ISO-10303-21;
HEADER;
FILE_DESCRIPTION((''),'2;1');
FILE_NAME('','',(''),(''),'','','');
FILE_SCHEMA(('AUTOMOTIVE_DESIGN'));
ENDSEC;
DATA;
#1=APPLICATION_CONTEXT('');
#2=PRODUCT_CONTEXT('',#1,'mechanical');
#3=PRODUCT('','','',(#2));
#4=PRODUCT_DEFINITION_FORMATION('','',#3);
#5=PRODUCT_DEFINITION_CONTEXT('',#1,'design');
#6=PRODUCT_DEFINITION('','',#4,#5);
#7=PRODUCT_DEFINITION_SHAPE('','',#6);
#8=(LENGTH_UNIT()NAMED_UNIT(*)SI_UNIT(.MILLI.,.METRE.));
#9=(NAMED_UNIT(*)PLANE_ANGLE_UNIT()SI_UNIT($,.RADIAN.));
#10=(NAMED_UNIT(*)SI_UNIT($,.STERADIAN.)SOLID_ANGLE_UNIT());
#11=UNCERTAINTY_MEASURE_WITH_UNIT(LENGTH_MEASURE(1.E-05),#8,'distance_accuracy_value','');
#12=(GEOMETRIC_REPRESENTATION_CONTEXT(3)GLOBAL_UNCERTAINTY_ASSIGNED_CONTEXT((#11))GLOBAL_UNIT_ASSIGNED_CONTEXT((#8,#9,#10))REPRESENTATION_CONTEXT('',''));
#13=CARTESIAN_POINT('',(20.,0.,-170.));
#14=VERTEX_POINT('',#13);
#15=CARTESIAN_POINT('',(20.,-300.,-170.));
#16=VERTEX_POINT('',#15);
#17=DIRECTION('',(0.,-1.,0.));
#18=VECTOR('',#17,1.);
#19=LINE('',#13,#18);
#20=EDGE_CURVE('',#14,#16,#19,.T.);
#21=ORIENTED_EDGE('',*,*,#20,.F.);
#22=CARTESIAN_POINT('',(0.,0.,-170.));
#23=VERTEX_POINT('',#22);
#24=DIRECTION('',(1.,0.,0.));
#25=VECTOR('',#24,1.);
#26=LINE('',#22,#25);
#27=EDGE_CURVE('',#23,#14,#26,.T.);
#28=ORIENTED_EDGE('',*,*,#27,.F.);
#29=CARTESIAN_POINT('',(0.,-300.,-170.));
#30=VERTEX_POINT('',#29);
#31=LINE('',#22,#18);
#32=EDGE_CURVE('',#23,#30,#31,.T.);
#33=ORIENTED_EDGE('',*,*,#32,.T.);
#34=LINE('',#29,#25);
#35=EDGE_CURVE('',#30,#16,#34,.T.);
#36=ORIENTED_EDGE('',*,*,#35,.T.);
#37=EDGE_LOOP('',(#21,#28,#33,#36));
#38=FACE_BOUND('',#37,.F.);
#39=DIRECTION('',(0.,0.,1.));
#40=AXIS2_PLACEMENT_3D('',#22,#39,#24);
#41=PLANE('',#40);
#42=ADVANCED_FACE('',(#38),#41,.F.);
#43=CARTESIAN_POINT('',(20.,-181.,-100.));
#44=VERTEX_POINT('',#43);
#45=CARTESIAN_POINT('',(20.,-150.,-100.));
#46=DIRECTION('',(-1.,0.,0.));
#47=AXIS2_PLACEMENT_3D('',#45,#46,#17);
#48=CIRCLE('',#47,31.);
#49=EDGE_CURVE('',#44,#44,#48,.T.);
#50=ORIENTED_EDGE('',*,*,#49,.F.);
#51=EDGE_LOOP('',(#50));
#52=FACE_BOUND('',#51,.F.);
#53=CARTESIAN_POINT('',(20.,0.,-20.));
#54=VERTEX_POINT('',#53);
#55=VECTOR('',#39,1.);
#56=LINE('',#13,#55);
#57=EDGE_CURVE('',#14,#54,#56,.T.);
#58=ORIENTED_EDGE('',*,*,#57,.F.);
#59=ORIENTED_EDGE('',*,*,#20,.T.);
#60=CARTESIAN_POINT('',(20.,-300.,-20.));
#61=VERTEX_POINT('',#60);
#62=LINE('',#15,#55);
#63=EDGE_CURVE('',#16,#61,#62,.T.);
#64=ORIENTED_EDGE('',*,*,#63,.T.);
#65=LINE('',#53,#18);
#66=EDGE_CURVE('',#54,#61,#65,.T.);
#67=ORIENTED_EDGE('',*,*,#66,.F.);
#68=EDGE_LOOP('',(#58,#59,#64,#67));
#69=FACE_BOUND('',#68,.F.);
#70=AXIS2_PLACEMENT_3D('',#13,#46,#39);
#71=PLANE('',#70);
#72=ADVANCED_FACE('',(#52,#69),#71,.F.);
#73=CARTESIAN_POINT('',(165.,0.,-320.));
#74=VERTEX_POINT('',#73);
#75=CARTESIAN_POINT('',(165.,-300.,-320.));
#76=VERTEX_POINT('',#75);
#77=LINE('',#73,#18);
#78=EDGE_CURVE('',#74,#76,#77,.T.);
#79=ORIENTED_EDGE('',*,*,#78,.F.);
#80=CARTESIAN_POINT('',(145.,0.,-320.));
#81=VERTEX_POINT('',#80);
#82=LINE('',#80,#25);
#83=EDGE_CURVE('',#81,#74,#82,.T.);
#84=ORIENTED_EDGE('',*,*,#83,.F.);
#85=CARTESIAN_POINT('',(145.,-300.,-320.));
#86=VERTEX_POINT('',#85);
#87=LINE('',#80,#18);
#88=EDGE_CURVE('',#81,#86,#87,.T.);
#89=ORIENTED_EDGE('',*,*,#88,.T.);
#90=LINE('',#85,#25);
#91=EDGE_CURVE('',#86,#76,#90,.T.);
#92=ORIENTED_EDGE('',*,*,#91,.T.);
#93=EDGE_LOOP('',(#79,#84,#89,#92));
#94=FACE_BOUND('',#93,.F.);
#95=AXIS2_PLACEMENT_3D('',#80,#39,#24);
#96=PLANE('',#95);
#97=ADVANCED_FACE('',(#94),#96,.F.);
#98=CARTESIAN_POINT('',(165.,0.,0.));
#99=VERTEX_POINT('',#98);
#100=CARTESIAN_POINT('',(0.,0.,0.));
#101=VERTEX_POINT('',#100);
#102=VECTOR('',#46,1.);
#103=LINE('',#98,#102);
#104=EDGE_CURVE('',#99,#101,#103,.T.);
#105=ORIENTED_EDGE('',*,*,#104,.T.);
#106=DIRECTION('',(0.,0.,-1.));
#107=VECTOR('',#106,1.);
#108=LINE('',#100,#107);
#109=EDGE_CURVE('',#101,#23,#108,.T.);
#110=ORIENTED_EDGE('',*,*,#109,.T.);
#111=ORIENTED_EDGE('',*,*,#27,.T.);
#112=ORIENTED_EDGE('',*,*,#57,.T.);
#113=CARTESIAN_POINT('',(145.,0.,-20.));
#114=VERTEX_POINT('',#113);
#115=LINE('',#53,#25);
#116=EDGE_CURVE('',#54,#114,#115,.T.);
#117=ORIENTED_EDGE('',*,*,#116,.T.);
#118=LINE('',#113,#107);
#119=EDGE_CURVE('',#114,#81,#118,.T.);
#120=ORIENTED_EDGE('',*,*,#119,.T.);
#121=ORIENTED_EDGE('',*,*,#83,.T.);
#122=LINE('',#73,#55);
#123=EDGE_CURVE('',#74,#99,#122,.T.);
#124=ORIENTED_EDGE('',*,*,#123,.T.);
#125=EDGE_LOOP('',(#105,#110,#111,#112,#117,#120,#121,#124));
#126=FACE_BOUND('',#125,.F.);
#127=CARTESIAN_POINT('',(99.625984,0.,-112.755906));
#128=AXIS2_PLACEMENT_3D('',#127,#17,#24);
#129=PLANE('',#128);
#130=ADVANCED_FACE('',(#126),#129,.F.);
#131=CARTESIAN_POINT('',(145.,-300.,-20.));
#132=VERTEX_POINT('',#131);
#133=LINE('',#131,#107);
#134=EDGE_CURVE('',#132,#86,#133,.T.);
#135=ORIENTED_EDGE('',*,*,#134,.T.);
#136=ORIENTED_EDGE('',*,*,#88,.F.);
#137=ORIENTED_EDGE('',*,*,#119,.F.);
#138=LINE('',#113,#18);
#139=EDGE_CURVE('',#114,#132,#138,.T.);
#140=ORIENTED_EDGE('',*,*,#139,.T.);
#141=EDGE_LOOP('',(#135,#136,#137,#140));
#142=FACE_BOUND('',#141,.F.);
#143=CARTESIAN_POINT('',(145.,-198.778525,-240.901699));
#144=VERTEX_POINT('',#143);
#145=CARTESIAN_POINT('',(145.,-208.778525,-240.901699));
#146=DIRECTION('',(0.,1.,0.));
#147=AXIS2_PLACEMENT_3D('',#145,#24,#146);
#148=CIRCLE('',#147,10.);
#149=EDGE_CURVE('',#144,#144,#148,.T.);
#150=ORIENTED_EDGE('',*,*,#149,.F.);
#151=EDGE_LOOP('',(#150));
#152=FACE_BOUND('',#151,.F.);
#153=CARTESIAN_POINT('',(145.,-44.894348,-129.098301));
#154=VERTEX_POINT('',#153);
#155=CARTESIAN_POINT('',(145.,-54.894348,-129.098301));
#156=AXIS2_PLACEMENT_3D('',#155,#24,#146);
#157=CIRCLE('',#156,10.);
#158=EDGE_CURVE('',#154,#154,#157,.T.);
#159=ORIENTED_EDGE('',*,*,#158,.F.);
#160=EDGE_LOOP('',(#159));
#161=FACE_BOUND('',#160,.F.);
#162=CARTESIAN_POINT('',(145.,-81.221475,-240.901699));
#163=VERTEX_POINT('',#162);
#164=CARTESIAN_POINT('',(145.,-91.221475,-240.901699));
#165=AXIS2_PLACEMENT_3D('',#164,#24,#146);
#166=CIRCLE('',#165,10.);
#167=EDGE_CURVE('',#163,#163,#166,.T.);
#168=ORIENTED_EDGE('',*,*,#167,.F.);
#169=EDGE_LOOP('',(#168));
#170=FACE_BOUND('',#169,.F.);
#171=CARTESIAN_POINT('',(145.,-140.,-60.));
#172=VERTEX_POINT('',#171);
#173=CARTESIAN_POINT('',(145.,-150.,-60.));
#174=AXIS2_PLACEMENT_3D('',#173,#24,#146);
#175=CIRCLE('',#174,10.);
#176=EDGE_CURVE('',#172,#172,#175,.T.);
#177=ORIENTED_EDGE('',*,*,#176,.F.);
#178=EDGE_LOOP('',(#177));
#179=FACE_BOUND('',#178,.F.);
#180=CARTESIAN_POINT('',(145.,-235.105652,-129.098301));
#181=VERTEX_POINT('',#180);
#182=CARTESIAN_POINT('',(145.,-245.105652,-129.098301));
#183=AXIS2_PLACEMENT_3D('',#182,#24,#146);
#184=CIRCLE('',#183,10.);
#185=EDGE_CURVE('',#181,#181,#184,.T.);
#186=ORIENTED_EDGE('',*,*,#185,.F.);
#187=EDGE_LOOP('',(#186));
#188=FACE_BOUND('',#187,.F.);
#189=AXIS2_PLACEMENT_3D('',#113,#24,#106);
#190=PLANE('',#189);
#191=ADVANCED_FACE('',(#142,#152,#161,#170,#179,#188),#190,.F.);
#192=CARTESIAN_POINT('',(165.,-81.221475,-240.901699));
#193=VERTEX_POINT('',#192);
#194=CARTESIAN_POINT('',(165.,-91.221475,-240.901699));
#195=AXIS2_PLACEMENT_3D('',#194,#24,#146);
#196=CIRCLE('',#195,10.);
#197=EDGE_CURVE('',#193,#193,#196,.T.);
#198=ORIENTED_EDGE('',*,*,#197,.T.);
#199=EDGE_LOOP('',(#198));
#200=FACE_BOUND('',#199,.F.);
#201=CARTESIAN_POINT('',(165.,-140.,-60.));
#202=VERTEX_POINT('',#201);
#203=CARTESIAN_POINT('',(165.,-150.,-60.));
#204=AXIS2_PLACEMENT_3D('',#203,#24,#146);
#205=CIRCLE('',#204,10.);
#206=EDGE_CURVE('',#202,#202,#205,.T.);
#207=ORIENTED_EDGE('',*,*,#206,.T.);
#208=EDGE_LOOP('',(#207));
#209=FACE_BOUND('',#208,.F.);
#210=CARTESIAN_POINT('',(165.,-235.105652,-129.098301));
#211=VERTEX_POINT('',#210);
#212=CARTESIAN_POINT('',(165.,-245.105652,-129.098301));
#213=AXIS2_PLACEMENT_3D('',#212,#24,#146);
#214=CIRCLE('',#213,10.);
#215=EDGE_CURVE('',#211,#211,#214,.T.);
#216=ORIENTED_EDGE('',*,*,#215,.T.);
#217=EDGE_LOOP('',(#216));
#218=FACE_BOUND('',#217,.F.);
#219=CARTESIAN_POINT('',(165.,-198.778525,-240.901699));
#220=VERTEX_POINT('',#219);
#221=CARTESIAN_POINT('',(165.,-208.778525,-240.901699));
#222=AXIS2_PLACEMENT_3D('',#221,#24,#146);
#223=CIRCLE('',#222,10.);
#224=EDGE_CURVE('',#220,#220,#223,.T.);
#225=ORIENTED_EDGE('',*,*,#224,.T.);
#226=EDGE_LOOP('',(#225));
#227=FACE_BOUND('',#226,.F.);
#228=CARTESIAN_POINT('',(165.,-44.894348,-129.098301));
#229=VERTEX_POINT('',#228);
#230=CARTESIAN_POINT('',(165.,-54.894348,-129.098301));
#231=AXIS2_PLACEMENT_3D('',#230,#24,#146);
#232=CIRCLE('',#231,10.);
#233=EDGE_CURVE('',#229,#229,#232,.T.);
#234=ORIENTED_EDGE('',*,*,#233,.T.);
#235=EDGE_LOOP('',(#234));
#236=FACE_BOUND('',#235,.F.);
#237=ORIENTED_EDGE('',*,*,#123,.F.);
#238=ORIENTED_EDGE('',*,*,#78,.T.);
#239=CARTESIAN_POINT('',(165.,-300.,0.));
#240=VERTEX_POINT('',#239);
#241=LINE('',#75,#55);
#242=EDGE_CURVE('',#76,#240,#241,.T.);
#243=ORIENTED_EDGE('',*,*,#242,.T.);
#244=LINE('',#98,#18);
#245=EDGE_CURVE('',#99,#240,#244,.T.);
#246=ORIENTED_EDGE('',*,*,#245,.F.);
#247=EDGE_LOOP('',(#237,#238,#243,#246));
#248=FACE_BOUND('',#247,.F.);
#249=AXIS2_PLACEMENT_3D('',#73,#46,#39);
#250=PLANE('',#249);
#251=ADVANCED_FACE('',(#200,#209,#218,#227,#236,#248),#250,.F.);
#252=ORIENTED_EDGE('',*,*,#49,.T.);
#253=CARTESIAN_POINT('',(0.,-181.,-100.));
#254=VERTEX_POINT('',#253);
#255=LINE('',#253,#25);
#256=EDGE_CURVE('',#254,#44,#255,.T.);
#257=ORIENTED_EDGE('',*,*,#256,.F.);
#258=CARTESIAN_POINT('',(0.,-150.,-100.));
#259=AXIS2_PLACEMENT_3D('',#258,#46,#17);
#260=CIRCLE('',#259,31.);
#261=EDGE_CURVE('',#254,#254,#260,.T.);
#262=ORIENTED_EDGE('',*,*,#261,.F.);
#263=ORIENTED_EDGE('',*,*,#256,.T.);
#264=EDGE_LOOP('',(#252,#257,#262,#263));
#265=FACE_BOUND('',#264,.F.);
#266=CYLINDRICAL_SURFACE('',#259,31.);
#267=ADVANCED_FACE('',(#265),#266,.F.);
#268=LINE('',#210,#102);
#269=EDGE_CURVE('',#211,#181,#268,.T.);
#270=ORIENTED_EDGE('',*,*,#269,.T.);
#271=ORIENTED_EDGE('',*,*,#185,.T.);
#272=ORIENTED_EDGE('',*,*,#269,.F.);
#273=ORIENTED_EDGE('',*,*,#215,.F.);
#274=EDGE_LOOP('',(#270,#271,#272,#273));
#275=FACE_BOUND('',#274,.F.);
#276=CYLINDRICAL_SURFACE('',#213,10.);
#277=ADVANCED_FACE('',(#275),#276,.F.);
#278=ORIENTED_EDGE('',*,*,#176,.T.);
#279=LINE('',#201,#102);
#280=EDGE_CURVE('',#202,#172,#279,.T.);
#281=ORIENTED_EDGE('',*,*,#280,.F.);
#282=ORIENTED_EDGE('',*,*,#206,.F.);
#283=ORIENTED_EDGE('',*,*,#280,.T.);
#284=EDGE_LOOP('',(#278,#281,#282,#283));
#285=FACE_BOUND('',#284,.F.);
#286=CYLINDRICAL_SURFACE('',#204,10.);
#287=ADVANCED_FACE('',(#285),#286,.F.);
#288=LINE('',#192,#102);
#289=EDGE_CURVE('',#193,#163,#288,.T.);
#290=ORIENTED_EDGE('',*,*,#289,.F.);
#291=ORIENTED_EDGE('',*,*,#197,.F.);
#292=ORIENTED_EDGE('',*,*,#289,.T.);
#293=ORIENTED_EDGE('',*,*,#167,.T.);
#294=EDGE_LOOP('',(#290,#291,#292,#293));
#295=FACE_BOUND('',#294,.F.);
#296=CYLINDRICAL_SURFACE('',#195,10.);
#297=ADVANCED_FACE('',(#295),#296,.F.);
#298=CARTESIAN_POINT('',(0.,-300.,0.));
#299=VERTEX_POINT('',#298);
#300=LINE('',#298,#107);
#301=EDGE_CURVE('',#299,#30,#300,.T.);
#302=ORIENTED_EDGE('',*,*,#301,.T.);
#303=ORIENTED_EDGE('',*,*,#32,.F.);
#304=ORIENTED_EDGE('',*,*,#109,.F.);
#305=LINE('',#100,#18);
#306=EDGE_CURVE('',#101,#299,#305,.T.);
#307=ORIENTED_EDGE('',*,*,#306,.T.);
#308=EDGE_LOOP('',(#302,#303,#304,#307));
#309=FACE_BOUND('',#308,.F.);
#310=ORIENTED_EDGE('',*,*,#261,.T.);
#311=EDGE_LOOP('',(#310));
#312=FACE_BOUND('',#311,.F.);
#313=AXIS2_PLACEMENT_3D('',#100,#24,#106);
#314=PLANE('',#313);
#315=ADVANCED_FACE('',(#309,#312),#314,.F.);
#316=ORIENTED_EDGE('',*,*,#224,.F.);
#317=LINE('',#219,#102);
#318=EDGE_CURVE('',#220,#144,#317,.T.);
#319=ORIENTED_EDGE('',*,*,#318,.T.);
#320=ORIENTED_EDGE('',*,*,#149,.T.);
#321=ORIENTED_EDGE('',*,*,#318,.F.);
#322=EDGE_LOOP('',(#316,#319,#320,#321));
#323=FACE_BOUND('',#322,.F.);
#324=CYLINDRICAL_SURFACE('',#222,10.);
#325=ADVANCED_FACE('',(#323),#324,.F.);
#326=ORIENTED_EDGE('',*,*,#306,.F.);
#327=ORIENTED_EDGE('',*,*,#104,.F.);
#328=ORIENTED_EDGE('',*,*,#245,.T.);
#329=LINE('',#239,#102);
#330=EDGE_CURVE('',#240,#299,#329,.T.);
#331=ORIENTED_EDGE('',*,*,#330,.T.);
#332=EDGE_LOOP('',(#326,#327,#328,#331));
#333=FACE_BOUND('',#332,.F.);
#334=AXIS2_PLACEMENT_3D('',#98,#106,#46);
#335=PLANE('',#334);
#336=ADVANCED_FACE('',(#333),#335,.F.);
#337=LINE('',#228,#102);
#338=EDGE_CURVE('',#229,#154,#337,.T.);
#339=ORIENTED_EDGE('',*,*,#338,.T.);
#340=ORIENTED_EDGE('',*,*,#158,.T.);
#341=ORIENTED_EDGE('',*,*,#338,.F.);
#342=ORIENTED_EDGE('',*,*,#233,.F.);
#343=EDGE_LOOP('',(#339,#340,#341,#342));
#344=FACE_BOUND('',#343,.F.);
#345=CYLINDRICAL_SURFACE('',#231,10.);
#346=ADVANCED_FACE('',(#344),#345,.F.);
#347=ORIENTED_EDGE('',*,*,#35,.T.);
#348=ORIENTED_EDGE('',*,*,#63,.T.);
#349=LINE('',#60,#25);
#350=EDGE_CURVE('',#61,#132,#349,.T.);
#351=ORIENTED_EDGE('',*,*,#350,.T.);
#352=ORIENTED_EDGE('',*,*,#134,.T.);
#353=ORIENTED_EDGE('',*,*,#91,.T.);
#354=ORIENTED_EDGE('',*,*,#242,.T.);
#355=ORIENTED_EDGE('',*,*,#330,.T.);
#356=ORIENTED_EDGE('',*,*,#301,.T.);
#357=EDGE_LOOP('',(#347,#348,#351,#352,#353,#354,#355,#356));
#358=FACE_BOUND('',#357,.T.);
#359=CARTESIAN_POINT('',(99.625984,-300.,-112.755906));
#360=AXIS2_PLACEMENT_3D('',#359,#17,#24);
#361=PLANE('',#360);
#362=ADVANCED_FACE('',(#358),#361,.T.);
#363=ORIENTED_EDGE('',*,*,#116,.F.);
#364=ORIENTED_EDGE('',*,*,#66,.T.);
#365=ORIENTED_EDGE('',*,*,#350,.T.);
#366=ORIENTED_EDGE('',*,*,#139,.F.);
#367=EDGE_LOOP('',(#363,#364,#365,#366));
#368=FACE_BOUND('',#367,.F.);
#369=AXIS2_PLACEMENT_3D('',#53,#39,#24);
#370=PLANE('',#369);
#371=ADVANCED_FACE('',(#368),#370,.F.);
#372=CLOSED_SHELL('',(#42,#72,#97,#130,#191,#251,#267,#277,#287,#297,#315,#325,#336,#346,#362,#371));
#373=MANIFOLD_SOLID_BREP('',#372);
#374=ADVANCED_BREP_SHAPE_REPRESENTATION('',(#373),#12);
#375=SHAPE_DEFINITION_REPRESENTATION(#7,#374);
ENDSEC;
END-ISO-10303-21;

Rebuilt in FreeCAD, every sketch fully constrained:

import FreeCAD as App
import Part
import Sketcher
Q = App.Units.Quantity

doc = App.newDocument("Part")
body = doc.addObject("PartDesign::Body", "Body")

# Sketch on XZ plane
sketch1 = body.newObject("Sketcher::SketchObject", "Sketch")
sketch1.AttachmentSupport = (doc.getObject("XZ_Plane"), [""])
sketch1.MapMode = "FlatFace"
sketch1.addGeometry([
    Part.LineSegment(App.Vector(165, 0, 0), App.Vector(0, 0, 0)),  # 0
    Part.LineSegment(App.Vector(0, 0, 0), App.Vector(0, -170, 0)),  # 1
    Part.LineSegment(App.Vector(0, -170, 0), App.Vector(20, -170, 0)),  # 2
    Part.LineSegment(App.Vector(20, -170, 0), App.Vector(20, -20, 0)),  # 3
    Part.LineSegment(App.Vector(20, -20, 0), App.Vector(145, -20, 0)),  # 4
    Part.LineSegment(App.Vector(145, -20, 0), App.Vector(145, -320, 0)),  # 5
    Part.LineSegment(App.Vector(145, -320, 0), App.Vector(165, -320, 0)),  # 6
    Part.LineSegment(App.Vector(165, -320, 0), App.Vector(165, 0, 0)),  # 7
], False)
sketch1.addConstraint([
    Sketcher.Constraint("Coincident", 0, 2, 1, 1),
    Sketcher.Constraint("Coincident", 1, 2, 2, 1),
    Sketcher.Constraint("Coincident", 2, 2, 3, 1),
    Sketcher.Constraint("Coincident", 3, 2, 4, 1),
    Sketcher.Constraint("Coincident", 4, 2, 5, 1),
    Sketcher.Constraint("Coincident", 5, 2, 6, 1),
    Sketcher.Constraint("Coincident", 6, 2, 7, 1),
    Sketcher.Constraint("Coincident", 7, 2, 0, 1),
    Sketcher.Constraint("Horizontal", 0),
    Sketcher.Constraint("Vertical", 1),
    Sketcher.Constraint("Horizontal", 2),
    Sketcher.Constraint("Vertical", 3),
    Sketcher.Constraint("Horizontal", 4),
    Sketcher.Constraint("Vertical", 5),
    Sketcher.Constraint("Horizontal", 6),
    Sketcher.Constraint("Vertical", 7),
    Sketcher.Constraint("Coincident", 0, 2, -1, 1),
    Sketcher.Constraint("Equal", 2, 6),
    Sketcher.Constraint("DistanceX", 0, 2, 0, 1, Q("165 mm")),
    Sketcher.Constraint("DistanceX", 2, 1, 2, 2, Q("20 mm")),
    Sketcher.Constraint("DistanceY", 1, 2, 1, 1, Q("170 mm")),
    Sketcher.Constraint("DistanceY", 3, 1, 3, 2, Q("150 mm")),
    Sketcher.Constraint("DistanceY", 5, 2, 5, 1, Q("300 mm")),
])
pad1 = body.newObject("PartDesign::Pad", "Pad")
pad1.Profile = sketch1
pad1.Length = 300

# Sketch on YZ plane
sketch2 = body.newObject("Sketcher::SketchObject", "Sketch001")
sketch2.AttachmentSupport = (doc.getObject("YZ_Plane"), [""])
sketch2.MapMode = "FlatFace"
sketch2.addGeometry(Part.Circle(App.Vector(-150, -100, 0), App.Vector(0, 0, 1), 31), False)
sketch2.addConstraint([
    Sketcher.Constraint("Diameter", 0, Q("62 mm")),
    Sketcher.Constraint("DistanceX", 0, 3, -1, 1, Q("150 mm")),
    Sketcher.Constraint("DistanceY", 0, 3, -1, 1, Q("100 mm")),
])
pocket1 = body.newObject("PartDesign::Pocket", "Pocket")
pocket1.Profile = sketch2
pocket1.Length = 20
pocket1.Reversed = True

# Sketch on YZ plane
sketch3 = body.newObject("Sketcher::SketchObject", "Sketch002")
sketch3.AttachmentSupport = (doc.getObject("YZ_Plane"), [""])
sketch3.MapMode = "FlatFace"
sketch3.AttachmentOffset = App.Placement(App.Vector(0, 0, 165), App.Rotation())
sketch3.addGeometry([
    Part.Circle(App.Vector(-150, -60, 0), App.Vector(0, 0, 1), 10),  # 0
    Part.Circle(App.Vector(-245, -129, 0), App.Vector(0, 0, 1), 10),  # 1
    Part.Circle(App.Vector(-209, -241, 0), App.Vector(0, 0, 1), 10),  # 2
    Part.Circle(App.Vector(-91, -241, 0), App.Vector(0, 0, 1), 10),  # 3
    Part.Circle(App.Vector(-55, -129, 0), App.Vector(0, 0, 1), 10),  # 4
], False)
sketch3.addConstraint([
    Sketcher.Constraint("Equal", 0, 1),
    Sketcher.Constraint("Equal", 1, 2),
    Sketcher.Constraint("Equal", 2, 3),
    Sketcher.Constraint("Equal", 3, 4),
    Sketcher.Constraint("Horizontal", 2, 3, 3, 3),
    Sketcher.Constraint("Horizontal", 1, 3, 4, 3),
    Sketcher.Constraint("Diameter", 0, Q("20 mm")),
    Sketcher.Constraint("DistanceX", 0, 3, -1, 1, Q("150 mm")),
    Sketcher.Constraint("DistanceY", 0, 3, -1, 1, Q("60 mm")),
    Sketcher.Constraint("DistanceY", 1, 3, -1, 1, Q("129.098301 mm")),
    Sketcher.Constraint("DistanceY", 2, 3, -1, 1, Q("240.901699 mm")),
    Sketcher.Constraint("DistanceX", 1, 3, -1, 1, Q("245.105652 mm")),
    Sketcher.Constraint("DistanceX", 2, 3, 3, 3, Q("117.55705 mm")),
    Sketcher.Constraint("DistanceX", 0, 3, 4, 3, Q("95.105652 mm")),
    Sketcher.Constraint("DistanceX", 2, 3, -1, 1, Q("208.778525 mm")),
])
pocket2 = body.newObject("PartDesign::Pocket", "Pocket001")
pocket2.Profile = sketch3
pocket2.Length = 20

doc.recompute()
